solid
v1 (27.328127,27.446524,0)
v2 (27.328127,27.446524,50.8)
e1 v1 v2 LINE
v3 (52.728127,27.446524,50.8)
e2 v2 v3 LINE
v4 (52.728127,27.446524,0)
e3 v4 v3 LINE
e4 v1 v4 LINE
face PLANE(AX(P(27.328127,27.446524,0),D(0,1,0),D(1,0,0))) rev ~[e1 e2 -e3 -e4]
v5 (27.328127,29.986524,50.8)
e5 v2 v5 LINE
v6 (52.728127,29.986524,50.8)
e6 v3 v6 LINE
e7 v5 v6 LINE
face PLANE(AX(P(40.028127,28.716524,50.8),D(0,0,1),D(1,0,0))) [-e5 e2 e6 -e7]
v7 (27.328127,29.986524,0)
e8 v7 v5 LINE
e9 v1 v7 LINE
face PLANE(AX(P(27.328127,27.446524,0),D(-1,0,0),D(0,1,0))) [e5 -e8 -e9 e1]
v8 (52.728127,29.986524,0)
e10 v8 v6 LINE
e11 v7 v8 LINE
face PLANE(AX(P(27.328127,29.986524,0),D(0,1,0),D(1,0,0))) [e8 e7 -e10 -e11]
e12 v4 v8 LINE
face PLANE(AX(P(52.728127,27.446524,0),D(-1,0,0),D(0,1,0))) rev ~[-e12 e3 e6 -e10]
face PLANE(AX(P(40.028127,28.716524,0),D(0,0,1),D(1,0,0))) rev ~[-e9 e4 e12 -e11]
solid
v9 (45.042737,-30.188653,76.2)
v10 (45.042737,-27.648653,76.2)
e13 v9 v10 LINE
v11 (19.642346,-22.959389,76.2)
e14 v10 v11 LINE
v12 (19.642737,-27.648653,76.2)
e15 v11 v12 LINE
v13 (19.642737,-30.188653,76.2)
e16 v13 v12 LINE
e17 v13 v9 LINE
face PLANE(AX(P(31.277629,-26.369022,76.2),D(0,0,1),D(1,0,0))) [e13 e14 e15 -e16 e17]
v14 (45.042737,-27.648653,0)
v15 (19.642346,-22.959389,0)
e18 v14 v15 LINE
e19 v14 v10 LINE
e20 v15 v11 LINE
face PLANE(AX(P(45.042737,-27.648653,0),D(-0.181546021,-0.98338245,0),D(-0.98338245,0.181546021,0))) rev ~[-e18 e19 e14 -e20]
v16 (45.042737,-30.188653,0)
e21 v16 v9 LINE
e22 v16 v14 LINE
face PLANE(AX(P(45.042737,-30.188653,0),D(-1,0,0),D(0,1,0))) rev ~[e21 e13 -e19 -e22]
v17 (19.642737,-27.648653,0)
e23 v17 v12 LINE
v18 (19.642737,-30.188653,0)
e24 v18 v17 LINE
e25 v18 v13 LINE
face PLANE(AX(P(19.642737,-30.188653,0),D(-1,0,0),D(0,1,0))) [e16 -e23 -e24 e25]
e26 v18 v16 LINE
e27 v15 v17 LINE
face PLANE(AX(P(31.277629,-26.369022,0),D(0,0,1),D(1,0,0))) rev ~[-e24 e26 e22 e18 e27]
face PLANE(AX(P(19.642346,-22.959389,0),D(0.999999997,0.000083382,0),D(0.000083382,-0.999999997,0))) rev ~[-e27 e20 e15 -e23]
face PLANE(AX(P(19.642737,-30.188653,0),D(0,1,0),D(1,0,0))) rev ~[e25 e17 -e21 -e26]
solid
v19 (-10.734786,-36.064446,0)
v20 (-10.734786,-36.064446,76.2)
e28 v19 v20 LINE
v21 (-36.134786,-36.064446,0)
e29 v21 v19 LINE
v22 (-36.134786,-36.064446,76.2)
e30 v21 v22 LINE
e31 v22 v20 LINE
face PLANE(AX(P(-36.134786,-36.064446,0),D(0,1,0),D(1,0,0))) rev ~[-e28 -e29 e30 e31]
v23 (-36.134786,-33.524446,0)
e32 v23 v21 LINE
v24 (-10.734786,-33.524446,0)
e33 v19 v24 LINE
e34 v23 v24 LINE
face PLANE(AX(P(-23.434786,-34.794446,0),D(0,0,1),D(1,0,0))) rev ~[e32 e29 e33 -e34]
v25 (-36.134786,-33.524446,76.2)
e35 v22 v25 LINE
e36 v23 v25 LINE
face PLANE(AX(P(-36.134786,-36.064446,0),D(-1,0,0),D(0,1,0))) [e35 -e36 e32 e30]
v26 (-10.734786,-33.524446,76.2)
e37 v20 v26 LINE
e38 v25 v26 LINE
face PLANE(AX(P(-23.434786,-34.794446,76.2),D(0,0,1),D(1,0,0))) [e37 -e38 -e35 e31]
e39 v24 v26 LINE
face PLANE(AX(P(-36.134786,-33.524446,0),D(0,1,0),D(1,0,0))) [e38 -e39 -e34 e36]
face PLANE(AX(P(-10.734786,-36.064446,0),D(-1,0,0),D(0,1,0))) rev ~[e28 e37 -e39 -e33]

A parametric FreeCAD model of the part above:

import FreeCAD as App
import Part
import Sketcher
Q = App.Units.Quantity

doc = App.newDocument("Part")
body = doc.addObject("PartDesign::Body", "Body")

# Sketch on XY plane
sketch1 = body.newObject("Sketcher::SketchObject", "Sketch")
sketch1.AttachmentSupport = (doc.getObject("XY_Plane"), [""])
sketch1.MapMode = "FlatFace"
sketch1.addGeometry([
    Part.LineSegment(App.Vector(-36.1, -33.5, 0), App.Vector(-36.1, -36.1, 0)),
    Part.LineSegment(App.Vector(-36.1, -36.1, 0), App.Vector(-10.7, -36.1, 0)),
    Part.LineSegment(App.Vector(-10.7, -36.1, 0), App.Vector(-10.7, -33.5, 0)),
    Part.LineSegment(App.Vector(-10.7, -33.5, 0), App.Vector(-36.1, -33.5, 0)),
], False)
sketch1.addConstraint([
    Sketcher.Constraint("Coincident", 0, 2, 1, 1),
    Sketcher.Constraint("Coincident", 1, 2, 2, 1),
    Sketcher.Constraint("Coincident", 2, 2, 3, 1),
    Sketcher.Constraint("Coincident", 3, 2, 0, 1),
    Sketcher.Constraint("Vertical", 0),
    Sketcher.Constraint("Horizontal", 1),
    Sketcher.Constraint("Vertical", 2),
    Sketcher.Constraint("Horizontal", 3),
    Sketcher.Constraint("DistanceX", 1, 1, 1, 2, Q("1 in")),
    Sketcher.Constraint("DistanceY", 0, 2, 0, 1, Q("0.1 in")),
    Sketcher.Constraint("DistanceX", 0, 2, -1, 1, 36.134786),
    Sketcher.Constraint("DistanceY", 0, 2, -1, 1, 36.064446),
])
pad1 = body.newObject("PartDesign::Pad", "Pad")
pad1.Profile = sketch1
pad1.Length = Q("3 in")

# Sketch on XY plane
sketch2 = body.newObject("Sketcher::SketchObject", "Sketch001")
sketch2.AttachmentSupport = (doc.getObject("XY_Plane"), [""])
sketch2.MapMode = "FlatFace"
sketch2.addGeometry([
    Part.LineSegment(App.Vector(40, -23, 0), App.Vector(-36, -24, 0)),
    Part.LineSegment(App.Vector(-36, -24, 0), App.Vector(-36, -35, 0)),
    Part.LineSegment(App.Vector(-36, -35, 0), App.Vector(40, -35, 0)),
    Part.LineSegment(App.Vector(40, -35, 0), App.Vector(40, -23, 0)),
], False)
sketch2.addConstraint([
    Sketcher.Constraint("Coincident", 0, 2, 1, 1),
    Sketcher.Constraint("Coincident", 1, 2, 2, 1),
    Sketcher.Constraint("Coincident", 2, 2, 3, 1),
    Sketcher.Constraint("Coincident", 3, 2, 0, 1),
    Sketcher.Constraint("Vertical", 1),
    Sketcher.Constraint("Horizontal", 2),
    Sketcher.Constraint("Vertical", 3),
    Sketcher.Constraint("DistanceX", 2, 1, 2, 2, 76.160561),
    Sketcher.Constraint("DistanceY", 3, 1, 3, 2, 12.359858),
    Sketcher.Constraint("DistanceY", 1, 2, 1, 1, 11.771292),
    Sketcher.Constraint("DistanceY", 0, 2, -1, 1, 23.655012),
    Sketcher.Constraint("DistanceX", 0, 2, -1, 1, 36.424875),
])
pocket1 = body.newObject("PartDesign::Pocket", "Pocket")
pocket1.Profile = sketch2
pocket1.Length = Q("1.39 in")
body2 = doc.addObject("PartDesign::Body", "Body001")

# Sketch on XY plane
sketch3 = body2.newObject("Sketcher::SketchObject", "Sketch002")
sketch3.AttachmentSupport = (doc.getObject("XY_Plane001"), [""])
sketch3.MapMode = "FlatFace"
sketch3.addGeometry([
    Part.LineSegment(App.Vector(19.6, -23, 0), App.Vector(19.6, -27.6, 0)),  # 0
    Part.LineSegment(App.Vector(19.6, -27.6, 0), App.Vector(19.6, -30.2, 0)),  # 1
    Part.LineSegment(App.Vector(19.6, -30.2, 0), App.Vector(45, -30.2, 0)),  # 2
    Part.LineSegment(App.Vector(45, -30.2, 0), App.Vector(45, -27.6, 0)),  # 3
    Part.LineSegment(App.Vector(45, -27.6, 0), App.Vector(19.6, -23, 0)),  # 4
], False)
sketch3.addConstraint([
    Sketcher.Constraint("Coincident", 0, 2, 1, 1),
    Sketcher.Constraint("Coincident", 1, 2, 2, 1),
    Sketcher.Constraint("Coincident", 2, 2, 3, 1),
    Sketcher.Constraint("Coincident", 3, 2, 4, 1),
    Sketcher.Constraint("Coincident", 4, 2, 0, 1),
    Sketcher.Constraint("Vertical", 1),
    Sketcher.Constraint("Horizontal", 2),
    Sketcher.Constraint("Vertical", 3),
    Sketcher.Constraint("Horizontal", 0, 2, 3, 2),
    Sketcher.Constraint("DistanceX", 2, 1, 2, 2, Q("1 in")),
    Sketcher.Constraint("DistanceY", 1, 2, 1, 1, Q("0.1 in")),
    Sketcher.Constraint("DistanceY", 4, 2, -1, 1, 22.959389),
    Sketcher.Constraint("DistanceX", 4, 2, 0, 2, 0.000391),
    Sketcher.Constraint("Distance", 0, 4.689264),
    Sketcher.Constraint("DistanceX", -1, 1, 0, 2, 19.642737),
])
pad2 = body2.newObject("PartDesign::Pad", "Pad001")
pad2.Profile = sketch3
pad2.Length = Q("3 in")
body3 = doc.addObject("PartDesign::Body", "Body002")

# Sketch on XY plane
sketch4 = body3.newObject("Sketcher::SketchObject", "Sketch003")
sketch4.AttachmentSupport = (doc.getObject("XY_Plane002"), [""])
sketch4.MapMode = "FlatFace"
sketch4.addGeometry([
    Part.LineSegment(App.Vector(27.3, 30, 0), App.Vector(27.3, 27.4, 0)),
    Part.LineSegment(App.Vector(27.3, 27.4, 0), App.Vector(52.7, 27.4, 0)),
    Part.LineSegment(App.Vector(52.7, 27.4, 0), App.Vector(52.7, 30, 0)),
    Part.LineSegment(App.Vector(52.7, 30, 0), App.Vector(27.3, 30, 0)),
], False)
sketch4.addConstraint([
    Sketcher.Constraint("Coincident", 0, 2, 1, 1),
    Sketcher.Constraint("Coincident", 1, 2, 2, 1),
    Sketcher.Constraint("Coincident", 2, 2, 3, 1),
    Sketcher.Constraint("Coincident", 3, 2, 0, 1),
    Sketcher.Constraint("Vertical", 0),
    Sketcher.Constraint("Horizontal", 1),
    Sketcher.Constraint("Vertical", 2),
    Sketcher.Constraint("Horizontal", 3),
    Sketcher.Constraint("DistanceX", 1, 1, 1, 2, Q("1 in")),
    Sketcher.Constraint("DistanceY", 0, 2, 0, 1, Q("0.1 in")),
    Sketcher.Constraint("DistanceX", -1, 1, 0, 2, 27.328127),
    Sketcher.Constraint("DistanceY", -1, 1, 0, 2, 27.446524),
])
pad3 = body3.newObject("PartDesign::Pad", "Pad002")
pad3.Profile = sketch4
pad3.Length = Q("2 in")

doc.recompute()
